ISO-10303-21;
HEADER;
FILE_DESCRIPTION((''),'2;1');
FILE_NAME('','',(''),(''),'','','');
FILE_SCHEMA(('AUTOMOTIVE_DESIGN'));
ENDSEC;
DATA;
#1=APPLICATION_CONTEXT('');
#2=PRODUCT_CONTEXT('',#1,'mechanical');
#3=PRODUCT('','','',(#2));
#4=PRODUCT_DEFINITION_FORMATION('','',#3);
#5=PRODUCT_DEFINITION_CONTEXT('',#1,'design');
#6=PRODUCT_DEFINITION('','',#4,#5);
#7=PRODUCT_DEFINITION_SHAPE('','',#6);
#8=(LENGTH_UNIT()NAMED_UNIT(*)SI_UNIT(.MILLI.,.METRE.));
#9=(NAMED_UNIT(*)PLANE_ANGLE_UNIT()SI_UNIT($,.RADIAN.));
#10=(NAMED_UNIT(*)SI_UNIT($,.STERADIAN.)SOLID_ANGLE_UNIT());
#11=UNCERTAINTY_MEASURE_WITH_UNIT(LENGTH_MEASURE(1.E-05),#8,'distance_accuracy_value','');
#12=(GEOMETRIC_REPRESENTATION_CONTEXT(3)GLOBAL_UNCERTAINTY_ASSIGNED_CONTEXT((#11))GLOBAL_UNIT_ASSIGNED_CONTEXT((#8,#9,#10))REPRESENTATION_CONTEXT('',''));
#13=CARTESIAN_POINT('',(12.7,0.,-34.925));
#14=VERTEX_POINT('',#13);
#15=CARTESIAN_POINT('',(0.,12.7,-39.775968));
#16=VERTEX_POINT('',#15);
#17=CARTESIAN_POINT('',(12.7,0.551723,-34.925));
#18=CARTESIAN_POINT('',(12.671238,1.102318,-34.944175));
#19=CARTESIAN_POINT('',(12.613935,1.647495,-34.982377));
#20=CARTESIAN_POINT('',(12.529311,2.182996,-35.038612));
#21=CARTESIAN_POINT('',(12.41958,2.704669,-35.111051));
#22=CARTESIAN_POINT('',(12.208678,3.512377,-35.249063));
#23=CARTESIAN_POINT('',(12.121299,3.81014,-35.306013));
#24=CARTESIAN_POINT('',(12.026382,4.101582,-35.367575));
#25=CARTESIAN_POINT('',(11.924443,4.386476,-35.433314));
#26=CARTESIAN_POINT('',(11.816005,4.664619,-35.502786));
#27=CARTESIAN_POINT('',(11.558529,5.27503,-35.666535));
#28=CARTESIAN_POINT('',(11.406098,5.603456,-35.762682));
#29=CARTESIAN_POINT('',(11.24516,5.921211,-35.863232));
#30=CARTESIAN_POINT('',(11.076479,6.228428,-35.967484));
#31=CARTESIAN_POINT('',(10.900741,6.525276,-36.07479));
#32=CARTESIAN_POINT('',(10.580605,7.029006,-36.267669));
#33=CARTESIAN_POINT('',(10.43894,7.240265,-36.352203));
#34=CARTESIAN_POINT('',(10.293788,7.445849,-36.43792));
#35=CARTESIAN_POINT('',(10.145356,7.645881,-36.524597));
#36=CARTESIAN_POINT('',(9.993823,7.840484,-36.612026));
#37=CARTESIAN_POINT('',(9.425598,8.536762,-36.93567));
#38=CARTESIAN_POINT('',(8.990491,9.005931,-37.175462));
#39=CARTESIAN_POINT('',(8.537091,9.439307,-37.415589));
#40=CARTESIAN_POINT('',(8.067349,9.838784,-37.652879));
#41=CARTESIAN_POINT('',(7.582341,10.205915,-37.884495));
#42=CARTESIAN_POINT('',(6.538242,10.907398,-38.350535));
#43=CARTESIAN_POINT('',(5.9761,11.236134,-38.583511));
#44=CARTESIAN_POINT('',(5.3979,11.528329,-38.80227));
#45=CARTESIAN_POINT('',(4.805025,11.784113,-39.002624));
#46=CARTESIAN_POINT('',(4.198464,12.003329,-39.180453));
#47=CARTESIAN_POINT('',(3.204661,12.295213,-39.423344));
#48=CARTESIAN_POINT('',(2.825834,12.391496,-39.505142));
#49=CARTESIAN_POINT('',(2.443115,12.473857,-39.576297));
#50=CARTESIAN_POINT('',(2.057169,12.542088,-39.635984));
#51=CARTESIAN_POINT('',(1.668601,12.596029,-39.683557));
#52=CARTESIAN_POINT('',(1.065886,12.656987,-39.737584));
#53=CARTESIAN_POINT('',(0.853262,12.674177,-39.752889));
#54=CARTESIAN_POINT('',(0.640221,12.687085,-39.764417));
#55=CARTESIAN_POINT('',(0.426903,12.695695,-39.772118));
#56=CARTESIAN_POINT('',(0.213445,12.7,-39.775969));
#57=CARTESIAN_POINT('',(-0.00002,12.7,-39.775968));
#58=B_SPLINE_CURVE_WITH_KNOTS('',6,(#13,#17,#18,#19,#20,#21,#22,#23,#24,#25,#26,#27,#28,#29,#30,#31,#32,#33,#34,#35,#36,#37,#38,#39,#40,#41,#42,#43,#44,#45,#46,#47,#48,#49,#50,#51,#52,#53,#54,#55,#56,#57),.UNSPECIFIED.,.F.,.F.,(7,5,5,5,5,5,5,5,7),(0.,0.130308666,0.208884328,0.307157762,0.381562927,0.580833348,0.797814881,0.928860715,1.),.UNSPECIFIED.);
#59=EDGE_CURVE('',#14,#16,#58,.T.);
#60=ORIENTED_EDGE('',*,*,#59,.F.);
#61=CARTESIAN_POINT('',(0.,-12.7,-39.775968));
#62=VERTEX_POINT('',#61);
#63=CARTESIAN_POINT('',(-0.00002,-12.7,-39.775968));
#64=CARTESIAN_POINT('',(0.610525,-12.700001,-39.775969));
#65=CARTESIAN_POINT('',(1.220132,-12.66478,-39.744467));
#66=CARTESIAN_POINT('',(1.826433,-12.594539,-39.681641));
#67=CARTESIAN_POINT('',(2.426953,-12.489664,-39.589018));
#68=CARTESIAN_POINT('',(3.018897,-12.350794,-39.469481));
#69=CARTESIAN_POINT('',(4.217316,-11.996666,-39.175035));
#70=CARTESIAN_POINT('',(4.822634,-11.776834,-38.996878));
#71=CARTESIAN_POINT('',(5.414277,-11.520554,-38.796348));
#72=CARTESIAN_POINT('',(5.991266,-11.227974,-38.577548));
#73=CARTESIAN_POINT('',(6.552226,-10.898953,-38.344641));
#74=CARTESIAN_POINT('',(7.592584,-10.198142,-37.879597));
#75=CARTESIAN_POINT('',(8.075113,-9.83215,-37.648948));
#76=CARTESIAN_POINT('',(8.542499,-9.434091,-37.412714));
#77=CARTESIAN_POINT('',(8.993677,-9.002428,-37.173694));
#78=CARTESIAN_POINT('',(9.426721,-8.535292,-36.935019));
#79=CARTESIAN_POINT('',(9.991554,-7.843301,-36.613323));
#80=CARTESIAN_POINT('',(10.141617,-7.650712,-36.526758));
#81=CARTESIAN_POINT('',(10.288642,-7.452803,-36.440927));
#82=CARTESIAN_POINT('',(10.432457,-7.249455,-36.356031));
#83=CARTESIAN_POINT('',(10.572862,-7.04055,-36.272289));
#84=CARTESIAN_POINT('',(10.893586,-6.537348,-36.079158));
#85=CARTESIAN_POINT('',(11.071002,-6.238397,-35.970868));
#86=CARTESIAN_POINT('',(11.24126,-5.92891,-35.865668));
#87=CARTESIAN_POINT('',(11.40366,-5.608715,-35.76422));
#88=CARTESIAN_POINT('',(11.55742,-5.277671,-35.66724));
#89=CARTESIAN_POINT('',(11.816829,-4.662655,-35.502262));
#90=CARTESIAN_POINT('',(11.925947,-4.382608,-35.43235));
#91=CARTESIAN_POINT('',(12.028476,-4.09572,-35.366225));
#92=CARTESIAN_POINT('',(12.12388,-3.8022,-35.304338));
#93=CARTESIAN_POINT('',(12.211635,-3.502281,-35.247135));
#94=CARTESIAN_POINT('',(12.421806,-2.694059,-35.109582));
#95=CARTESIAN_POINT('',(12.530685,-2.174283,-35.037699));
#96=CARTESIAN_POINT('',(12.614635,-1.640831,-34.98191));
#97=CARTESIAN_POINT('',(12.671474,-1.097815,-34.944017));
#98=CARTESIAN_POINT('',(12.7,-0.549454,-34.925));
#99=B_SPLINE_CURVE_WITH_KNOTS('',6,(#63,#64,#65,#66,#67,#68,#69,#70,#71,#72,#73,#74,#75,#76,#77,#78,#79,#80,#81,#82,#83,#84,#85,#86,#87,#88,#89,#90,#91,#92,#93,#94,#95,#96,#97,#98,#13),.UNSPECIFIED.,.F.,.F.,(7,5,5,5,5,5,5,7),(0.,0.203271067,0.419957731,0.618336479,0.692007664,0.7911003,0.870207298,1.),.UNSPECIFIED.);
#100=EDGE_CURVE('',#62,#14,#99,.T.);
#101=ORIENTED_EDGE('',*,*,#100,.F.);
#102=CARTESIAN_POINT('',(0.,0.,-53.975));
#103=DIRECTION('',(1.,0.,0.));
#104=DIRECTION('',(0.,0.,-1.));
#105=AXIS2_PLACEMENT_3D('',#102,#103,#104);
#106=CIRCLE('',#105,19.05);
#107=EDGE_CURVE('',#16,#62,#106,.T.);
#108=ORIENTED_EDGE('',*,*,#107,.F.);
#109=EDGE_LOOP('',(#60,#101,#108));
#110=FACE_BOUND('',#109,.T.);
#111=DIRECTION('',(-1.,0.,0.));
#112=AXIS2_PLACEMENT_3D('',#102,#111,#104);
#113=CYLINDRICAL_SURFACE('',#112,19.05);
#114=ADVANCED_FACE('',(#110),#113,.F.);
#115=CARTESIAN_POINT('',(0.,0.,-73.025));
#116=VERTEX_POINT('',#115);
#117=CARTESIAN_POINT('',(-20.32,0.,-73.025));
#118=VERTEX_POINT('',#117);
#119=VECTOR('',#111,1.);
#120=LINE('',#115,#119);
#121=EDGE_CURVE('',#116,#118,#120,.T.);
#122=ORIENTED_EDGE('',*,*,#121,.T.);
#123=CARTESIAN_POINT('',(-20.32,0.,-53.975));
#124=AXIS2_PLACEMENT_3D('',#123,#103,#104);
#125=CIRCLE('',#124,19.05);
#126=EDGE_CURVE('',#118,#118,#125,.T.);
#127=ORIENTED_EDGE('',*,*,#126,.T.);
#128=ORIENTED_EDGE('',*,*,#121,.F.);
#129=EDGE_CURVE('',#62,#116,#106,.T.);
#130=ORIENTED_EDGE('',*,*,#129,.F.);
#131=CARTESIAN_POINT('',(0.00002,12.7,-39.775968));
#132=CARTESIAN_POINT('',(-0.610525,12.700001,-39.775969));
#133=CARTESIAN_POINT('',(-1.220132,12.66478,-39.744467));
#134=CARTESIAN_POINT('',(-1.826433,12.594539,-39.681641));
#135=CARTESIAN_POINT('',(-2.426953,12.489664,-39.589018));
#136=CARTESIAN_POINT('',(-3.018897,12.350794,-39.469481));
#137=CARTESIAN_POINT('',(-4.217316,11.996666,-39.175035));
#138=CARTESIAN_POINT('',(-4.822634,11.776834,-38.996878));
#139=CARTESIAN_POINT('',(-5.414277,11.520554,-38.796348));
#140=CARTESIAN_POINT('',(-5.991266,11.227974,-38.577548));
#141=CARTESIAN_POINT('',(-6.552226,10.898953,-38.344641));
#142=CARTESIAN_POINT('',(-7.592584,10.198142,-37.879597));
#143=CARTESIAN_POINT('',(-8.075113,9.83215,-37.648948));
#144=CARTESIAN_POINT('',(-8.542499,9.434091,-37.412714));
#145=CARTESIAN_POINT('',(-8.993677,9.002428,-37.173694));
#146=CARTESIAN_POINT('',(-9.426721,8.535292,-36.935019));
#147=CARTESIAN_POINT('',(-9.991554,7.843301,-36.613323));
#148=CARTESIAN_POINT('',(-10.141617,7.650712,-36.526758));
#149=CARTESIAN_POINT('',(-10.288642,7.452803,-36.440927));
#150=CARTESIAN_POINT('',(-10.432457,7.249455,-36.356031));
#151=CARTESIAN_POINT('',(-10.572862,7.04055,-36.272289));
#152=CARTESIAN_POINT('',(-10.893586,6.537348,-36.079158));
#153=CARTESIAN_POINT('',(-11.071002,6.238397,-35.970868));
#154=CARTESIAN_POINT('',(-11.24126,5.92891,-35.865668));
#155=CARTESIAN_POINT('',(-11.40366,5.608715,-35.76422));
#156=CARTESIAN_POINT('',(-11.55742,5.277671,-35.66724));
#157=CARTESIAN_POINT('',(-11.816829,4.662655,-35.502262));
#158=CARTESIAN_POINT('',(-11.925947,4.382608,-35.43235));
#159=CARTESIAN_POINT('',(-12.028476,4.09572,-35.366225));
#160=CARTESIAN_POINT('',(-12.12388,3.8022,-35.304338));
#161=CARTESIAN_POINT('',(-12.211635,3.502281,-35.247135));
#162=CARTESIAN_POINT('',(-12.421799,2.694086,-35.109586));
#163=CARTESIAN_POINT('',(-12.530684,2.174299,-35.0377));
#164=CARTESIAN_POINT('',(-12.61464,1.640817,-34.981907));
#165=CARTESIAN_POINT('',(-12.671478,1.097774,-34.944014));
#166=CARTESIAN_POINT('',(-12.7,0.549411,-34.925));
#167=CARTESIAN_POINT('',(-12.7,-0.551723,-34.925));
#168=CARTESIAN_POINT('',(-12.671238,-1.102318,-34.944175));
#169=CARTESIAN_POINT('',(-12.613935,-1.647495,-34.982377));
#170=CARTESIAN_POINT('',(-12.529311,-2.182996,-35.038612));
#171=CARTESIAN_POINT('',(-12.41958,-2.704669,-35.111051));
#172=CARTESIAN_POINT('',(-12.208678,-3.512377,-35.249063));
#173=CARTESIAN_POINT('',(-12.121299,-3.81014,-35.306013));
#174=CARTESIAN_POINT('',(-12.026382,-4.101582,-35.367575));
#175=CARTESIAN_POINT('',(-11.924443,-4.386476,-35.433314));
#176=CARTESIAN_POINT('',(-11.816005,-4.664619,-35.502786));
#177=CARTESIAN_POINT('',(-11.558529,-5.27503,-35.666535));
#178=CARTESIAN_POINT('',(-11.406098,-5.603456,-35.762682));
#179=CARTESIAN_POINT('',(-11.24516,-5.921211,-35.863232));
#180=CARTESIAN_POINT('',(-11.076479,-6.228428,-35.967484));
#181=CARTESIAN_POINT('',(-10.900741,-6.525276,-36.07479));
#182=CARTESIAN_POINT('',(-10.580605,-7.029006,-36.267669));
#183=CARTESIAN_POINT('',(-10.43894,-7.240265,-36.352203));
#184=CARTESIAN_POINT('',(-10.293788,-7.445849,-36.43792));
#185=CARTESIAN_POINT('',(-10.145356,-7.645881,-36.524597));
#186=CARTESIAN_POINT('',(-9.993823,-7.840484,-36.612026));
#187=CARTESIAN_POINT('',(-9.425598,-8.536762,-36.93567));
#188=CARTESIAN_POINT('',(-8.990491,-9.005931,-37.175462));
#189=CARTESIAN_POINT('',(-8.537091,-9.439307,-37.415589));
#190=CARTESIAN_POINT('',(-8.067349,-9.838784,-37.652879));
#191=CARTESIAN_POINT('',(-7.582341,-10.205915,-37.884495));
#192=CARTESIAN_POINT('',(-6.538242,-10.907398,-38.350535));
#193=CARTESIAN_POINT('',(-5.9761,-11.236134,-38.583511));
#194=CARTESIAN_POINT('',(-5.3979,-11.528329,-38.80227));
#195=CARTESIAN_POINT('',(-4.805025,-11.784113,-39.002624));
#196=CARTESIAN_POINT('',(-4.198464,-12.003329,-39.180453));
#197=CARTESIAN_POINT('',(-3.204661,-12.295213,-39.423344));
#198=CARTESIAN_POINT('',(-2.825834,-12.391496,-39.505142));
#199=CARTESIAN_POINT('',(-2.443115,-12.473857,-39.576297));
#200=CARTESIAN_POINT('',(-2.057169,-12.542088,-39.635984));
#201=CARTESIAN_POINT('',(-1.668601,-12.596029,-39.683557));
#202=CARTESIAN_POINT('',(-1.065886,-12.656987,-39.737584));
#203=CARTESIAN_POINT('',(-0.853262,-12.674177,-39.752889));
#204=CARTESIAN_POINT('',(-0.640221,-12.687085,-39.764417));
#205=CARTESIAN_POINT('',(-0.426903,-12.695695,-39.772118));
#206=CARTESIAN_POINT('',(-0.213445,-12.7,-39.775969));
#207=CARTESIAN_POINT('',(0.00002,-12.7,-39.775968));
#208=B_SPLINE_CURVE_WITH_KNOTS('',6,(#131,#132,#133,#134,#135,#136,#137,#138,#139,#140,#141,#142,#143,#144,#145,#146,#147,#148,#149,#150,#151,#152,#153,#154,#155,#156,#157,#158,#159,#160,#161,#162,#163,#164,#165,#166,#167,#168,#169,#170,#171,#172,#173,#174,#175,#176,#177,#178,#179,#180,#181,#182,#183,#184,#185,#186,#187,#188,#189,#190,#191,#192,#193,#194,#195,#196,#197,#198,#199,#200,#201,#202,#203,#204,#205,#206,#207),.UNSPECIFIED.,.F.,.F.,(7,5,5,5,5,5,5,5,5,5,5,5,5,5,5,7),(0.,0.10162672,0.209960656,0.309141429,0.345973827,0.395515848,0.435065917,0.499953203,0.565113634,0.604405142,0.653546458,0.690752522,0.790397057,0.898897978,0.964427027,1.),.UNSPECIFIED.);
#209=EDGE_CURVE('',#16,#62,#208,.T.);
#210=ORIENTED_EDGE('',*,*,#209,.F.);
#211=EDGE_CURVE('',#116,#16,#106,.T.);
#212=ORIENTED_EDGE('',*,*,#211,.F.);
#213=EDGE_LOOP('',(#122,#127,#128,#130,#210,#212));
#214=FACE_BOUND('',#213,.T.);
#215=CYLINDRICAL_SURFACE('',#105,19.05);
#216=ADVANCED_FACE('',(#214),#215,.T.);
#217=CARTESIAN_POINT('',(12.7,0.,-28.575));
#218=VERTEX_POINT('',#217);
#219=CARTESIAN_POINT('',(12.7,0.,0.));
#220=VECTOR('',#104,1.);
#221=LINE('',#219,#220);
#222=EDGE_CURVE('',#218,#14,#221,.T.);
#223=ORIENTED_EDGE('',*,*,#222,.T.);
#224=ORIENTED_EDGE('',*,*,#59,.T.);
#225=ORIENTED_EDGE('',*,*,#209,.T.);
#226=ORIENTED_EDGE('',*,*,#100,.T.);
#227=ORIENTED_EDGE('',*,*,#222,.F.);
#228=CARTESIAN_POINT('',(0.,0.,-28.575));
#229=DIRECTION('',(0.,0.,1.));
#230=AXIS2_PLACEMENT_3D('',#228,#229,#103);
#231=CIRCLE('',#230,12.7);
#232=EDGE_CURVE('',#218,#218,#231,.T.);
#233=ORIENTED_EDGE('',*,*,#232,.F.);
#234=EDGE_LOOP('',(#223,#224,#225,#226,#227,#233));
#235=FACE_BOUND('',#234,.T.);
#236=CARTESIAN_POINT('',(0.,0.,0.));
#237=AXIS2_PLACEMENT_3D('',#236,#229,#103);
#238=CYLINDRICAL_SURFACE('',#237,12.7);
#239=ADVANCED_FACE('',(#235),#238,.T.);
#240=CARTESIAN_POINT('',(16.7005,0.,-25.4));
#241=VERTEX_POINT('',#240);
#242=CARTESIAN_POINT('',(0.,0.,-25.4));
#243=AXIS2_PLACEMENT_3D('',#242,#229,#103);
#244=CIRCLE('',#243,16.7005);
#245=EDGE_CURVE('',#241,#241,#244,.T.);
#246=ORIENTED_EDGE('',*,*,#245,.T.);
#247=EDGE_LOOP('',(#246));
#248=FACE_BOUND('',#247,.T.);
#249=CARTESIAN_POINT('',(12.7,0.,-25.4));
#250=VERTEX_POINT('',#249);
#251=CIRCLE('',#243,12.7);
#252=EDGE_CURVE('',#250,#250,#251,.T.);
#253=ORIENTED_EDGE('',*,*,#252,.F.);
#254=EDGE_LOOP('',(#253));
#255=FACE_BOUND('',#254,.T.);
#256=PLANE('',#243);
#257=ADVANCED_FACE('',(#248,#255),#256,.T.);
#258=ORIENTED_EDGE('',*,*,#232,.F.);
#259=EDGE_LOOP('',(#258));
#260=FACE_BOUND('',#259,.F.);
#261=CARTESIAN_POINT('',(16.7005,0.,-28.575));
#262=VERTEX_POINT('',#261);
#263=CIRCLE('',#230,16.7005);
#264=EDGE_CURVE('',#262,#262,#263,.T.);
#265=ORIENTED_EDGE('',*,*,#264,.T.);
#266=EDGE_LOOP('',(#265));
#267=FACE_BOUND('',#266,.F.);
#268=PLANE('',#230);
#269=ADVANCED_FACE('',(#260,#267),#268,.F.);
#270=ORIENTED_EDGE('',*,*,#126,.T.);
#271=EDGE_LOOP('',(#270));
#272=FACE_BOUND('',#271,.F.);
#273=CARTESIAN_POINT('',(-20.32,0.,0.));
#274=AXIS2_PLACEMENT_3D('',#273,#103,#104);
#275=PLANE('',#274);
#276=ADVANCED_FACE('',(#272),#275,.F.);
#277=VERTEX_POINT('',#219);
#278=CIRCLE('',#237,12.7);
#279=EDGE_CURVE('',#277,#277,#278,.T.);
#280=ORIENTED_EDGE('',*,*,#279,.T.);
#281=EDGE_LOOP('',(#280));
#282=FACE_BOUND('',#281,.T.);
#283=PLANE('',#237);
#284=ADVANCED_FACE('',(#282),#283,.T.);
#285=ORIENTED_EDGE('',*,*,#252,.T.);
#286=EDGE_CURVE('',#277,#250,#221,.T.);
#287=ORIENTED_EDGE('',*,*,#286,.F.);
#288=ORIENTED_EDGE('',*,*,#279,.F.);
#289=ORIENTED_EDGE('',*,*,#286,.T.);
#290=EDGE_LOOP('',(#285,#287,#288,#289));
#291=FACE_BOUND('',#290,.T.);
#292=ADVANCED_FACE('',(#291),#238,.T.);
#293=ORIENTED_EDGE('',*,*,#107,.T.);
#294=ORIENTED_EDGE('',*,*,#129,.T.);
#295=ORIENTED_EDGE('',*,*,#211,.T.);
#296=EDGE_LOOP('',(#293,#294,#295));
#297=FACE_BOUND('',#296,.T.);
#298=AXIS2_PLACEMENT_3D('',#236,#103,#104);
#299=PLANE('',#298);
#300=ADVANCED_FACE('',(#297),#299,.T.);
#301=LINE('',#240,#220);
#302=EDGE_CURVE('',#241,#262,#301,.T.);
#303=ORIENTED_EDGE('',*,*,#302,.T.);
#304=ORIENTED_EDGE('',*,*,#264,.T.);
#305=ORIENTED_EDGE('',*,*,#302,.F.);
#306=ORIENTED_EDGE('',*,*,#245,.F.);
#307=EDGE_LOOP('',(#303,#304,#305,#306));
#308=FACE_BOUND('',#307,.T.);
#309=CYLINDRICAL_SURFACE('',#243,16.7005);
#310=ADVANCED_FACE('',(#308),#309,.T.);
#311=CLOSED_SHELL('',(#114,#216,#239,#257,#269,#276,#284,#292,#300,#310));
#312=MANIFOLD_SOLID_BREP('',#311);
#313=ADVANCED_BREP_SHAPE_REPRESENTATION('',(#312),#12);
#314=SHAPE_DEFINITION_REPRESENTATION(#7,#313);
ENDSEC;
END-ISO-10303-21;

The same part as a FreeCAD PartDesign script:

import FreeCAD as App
import Part
import Sketcher

V = App.Vector
Q = App.Units.Quantity

doc = App.newDocument("Part")
body = doc.addObject("PartDesign::Body", "Body")

# Sketch on XY plane
sketch1 = body.newObject("Sketcher::SketchObject", "Sketch")
sketch1.AttachmentSupport = (doc.getObject("XY_Plane"), [""])
sketch1.MapMode = "FlatFace"
sketch1.addGeometry(Part.Circle(V(0, 0, 0), V(0, 0, 1), 13), False)
sketch1.addConstraint(Sketcher.Constraint("Coincident", 0, 3, -1, 1))
sketch1.addConstraint(Sketcher.Constraint("Diameter", 0, Q("1 in")))
pad1 = body.newObject("PartDesign::Pad", "Pad")
pad1.Profile = sketch1
pad1.Length = Q("2.125 in")
pad1.Reversed = True

# Sketch on XY plane
sketch2 = body.newObject("Sketcher::SketchObject", "Sketch001")
sketch2.AttachmentSupport = (doc.getObject("XY_Plane"), [""])
sketch2.MapMode = "FlatFace"
sketch2.AttachmentOffset = App.Placement(V(0, 0, -1 * 25.4), App.Rotation())
sketch2.addGeometry(Part.Circle(V(0, 0, 0), V(0, 0, 1), 17), False)
sketch2.addConstraint(Sketcher.Constraint("Coincident", 0, 3, -1, 1))
sketch2.addConstraint(Sketcher.Constraint("Diameter", 0, Q("1.315 in")))
pad2 = body.newObject("PartDesign::Pad", "Pad001")
pad2.Profile = sketch2
pad2.Length = Q("0.125 in")
pad2.Reversed = True

# Sketch on YZ plane
sketch3 = body.newObject("Sketcher::SketchObject", "Sketch002")
sketch3.AttachmentSupport = (doc.getObject("YZ_Plane"), [""])
sketch3.MapMode = "FlatFace"
sketch3.addGeometry(Part.Circle(V(0, -54, 0), V(0, 0, 1), 19), False)
sketch3.addConstraint(Sketcher.Constraint("PointOnObject", 0, 3, -2))
sketch3.addConstraint(Sketcher.Constraint("Diameter", 0, Q("1.5 in")))
sketch3.addConstraint(Sketcher.Constraint("DistanceY", 0, 3, -1, 1, Q("2.125 in")))
pocket1 = body.newObject("PartDesign::Pocket", "Pocket")
pocket1.Profile = sketch3
pocket1.Length = Q("0.5 in")
pocket1.Reversed = True

# Sketch on YZ plane
sketch4 = body.newObject("Sketcher::SketchObject", "Sketch003")
sketch4.AttachmentSupport = (doc.getObject("YZ_Plane"), [""])
sketch4.MapMode = "FlatFace"
sketch4.addGeometry(Part.Circle(V(0, -54, 0), V(0, 0, 1), 19), False)
sketch4.addConstraint(Sketcher.Constraint("PointOnObject", 0, 3, -2))
sketch4.addConstraint(Sketcher.Constraint("Diameter", 0, Q("1.5 in")))
sketch4.addConstraint(Sketcher.Constraint("DistanceY", 0, 3, -1, 1, Q("2.125 in")))
pad3 = body.newObject("PartDesign::Pad", "Pad002")
pad3.Profile = sketch4
pad3.Length = Q("0.8 in")
pad3.Reversed = True

doc.recompute()
